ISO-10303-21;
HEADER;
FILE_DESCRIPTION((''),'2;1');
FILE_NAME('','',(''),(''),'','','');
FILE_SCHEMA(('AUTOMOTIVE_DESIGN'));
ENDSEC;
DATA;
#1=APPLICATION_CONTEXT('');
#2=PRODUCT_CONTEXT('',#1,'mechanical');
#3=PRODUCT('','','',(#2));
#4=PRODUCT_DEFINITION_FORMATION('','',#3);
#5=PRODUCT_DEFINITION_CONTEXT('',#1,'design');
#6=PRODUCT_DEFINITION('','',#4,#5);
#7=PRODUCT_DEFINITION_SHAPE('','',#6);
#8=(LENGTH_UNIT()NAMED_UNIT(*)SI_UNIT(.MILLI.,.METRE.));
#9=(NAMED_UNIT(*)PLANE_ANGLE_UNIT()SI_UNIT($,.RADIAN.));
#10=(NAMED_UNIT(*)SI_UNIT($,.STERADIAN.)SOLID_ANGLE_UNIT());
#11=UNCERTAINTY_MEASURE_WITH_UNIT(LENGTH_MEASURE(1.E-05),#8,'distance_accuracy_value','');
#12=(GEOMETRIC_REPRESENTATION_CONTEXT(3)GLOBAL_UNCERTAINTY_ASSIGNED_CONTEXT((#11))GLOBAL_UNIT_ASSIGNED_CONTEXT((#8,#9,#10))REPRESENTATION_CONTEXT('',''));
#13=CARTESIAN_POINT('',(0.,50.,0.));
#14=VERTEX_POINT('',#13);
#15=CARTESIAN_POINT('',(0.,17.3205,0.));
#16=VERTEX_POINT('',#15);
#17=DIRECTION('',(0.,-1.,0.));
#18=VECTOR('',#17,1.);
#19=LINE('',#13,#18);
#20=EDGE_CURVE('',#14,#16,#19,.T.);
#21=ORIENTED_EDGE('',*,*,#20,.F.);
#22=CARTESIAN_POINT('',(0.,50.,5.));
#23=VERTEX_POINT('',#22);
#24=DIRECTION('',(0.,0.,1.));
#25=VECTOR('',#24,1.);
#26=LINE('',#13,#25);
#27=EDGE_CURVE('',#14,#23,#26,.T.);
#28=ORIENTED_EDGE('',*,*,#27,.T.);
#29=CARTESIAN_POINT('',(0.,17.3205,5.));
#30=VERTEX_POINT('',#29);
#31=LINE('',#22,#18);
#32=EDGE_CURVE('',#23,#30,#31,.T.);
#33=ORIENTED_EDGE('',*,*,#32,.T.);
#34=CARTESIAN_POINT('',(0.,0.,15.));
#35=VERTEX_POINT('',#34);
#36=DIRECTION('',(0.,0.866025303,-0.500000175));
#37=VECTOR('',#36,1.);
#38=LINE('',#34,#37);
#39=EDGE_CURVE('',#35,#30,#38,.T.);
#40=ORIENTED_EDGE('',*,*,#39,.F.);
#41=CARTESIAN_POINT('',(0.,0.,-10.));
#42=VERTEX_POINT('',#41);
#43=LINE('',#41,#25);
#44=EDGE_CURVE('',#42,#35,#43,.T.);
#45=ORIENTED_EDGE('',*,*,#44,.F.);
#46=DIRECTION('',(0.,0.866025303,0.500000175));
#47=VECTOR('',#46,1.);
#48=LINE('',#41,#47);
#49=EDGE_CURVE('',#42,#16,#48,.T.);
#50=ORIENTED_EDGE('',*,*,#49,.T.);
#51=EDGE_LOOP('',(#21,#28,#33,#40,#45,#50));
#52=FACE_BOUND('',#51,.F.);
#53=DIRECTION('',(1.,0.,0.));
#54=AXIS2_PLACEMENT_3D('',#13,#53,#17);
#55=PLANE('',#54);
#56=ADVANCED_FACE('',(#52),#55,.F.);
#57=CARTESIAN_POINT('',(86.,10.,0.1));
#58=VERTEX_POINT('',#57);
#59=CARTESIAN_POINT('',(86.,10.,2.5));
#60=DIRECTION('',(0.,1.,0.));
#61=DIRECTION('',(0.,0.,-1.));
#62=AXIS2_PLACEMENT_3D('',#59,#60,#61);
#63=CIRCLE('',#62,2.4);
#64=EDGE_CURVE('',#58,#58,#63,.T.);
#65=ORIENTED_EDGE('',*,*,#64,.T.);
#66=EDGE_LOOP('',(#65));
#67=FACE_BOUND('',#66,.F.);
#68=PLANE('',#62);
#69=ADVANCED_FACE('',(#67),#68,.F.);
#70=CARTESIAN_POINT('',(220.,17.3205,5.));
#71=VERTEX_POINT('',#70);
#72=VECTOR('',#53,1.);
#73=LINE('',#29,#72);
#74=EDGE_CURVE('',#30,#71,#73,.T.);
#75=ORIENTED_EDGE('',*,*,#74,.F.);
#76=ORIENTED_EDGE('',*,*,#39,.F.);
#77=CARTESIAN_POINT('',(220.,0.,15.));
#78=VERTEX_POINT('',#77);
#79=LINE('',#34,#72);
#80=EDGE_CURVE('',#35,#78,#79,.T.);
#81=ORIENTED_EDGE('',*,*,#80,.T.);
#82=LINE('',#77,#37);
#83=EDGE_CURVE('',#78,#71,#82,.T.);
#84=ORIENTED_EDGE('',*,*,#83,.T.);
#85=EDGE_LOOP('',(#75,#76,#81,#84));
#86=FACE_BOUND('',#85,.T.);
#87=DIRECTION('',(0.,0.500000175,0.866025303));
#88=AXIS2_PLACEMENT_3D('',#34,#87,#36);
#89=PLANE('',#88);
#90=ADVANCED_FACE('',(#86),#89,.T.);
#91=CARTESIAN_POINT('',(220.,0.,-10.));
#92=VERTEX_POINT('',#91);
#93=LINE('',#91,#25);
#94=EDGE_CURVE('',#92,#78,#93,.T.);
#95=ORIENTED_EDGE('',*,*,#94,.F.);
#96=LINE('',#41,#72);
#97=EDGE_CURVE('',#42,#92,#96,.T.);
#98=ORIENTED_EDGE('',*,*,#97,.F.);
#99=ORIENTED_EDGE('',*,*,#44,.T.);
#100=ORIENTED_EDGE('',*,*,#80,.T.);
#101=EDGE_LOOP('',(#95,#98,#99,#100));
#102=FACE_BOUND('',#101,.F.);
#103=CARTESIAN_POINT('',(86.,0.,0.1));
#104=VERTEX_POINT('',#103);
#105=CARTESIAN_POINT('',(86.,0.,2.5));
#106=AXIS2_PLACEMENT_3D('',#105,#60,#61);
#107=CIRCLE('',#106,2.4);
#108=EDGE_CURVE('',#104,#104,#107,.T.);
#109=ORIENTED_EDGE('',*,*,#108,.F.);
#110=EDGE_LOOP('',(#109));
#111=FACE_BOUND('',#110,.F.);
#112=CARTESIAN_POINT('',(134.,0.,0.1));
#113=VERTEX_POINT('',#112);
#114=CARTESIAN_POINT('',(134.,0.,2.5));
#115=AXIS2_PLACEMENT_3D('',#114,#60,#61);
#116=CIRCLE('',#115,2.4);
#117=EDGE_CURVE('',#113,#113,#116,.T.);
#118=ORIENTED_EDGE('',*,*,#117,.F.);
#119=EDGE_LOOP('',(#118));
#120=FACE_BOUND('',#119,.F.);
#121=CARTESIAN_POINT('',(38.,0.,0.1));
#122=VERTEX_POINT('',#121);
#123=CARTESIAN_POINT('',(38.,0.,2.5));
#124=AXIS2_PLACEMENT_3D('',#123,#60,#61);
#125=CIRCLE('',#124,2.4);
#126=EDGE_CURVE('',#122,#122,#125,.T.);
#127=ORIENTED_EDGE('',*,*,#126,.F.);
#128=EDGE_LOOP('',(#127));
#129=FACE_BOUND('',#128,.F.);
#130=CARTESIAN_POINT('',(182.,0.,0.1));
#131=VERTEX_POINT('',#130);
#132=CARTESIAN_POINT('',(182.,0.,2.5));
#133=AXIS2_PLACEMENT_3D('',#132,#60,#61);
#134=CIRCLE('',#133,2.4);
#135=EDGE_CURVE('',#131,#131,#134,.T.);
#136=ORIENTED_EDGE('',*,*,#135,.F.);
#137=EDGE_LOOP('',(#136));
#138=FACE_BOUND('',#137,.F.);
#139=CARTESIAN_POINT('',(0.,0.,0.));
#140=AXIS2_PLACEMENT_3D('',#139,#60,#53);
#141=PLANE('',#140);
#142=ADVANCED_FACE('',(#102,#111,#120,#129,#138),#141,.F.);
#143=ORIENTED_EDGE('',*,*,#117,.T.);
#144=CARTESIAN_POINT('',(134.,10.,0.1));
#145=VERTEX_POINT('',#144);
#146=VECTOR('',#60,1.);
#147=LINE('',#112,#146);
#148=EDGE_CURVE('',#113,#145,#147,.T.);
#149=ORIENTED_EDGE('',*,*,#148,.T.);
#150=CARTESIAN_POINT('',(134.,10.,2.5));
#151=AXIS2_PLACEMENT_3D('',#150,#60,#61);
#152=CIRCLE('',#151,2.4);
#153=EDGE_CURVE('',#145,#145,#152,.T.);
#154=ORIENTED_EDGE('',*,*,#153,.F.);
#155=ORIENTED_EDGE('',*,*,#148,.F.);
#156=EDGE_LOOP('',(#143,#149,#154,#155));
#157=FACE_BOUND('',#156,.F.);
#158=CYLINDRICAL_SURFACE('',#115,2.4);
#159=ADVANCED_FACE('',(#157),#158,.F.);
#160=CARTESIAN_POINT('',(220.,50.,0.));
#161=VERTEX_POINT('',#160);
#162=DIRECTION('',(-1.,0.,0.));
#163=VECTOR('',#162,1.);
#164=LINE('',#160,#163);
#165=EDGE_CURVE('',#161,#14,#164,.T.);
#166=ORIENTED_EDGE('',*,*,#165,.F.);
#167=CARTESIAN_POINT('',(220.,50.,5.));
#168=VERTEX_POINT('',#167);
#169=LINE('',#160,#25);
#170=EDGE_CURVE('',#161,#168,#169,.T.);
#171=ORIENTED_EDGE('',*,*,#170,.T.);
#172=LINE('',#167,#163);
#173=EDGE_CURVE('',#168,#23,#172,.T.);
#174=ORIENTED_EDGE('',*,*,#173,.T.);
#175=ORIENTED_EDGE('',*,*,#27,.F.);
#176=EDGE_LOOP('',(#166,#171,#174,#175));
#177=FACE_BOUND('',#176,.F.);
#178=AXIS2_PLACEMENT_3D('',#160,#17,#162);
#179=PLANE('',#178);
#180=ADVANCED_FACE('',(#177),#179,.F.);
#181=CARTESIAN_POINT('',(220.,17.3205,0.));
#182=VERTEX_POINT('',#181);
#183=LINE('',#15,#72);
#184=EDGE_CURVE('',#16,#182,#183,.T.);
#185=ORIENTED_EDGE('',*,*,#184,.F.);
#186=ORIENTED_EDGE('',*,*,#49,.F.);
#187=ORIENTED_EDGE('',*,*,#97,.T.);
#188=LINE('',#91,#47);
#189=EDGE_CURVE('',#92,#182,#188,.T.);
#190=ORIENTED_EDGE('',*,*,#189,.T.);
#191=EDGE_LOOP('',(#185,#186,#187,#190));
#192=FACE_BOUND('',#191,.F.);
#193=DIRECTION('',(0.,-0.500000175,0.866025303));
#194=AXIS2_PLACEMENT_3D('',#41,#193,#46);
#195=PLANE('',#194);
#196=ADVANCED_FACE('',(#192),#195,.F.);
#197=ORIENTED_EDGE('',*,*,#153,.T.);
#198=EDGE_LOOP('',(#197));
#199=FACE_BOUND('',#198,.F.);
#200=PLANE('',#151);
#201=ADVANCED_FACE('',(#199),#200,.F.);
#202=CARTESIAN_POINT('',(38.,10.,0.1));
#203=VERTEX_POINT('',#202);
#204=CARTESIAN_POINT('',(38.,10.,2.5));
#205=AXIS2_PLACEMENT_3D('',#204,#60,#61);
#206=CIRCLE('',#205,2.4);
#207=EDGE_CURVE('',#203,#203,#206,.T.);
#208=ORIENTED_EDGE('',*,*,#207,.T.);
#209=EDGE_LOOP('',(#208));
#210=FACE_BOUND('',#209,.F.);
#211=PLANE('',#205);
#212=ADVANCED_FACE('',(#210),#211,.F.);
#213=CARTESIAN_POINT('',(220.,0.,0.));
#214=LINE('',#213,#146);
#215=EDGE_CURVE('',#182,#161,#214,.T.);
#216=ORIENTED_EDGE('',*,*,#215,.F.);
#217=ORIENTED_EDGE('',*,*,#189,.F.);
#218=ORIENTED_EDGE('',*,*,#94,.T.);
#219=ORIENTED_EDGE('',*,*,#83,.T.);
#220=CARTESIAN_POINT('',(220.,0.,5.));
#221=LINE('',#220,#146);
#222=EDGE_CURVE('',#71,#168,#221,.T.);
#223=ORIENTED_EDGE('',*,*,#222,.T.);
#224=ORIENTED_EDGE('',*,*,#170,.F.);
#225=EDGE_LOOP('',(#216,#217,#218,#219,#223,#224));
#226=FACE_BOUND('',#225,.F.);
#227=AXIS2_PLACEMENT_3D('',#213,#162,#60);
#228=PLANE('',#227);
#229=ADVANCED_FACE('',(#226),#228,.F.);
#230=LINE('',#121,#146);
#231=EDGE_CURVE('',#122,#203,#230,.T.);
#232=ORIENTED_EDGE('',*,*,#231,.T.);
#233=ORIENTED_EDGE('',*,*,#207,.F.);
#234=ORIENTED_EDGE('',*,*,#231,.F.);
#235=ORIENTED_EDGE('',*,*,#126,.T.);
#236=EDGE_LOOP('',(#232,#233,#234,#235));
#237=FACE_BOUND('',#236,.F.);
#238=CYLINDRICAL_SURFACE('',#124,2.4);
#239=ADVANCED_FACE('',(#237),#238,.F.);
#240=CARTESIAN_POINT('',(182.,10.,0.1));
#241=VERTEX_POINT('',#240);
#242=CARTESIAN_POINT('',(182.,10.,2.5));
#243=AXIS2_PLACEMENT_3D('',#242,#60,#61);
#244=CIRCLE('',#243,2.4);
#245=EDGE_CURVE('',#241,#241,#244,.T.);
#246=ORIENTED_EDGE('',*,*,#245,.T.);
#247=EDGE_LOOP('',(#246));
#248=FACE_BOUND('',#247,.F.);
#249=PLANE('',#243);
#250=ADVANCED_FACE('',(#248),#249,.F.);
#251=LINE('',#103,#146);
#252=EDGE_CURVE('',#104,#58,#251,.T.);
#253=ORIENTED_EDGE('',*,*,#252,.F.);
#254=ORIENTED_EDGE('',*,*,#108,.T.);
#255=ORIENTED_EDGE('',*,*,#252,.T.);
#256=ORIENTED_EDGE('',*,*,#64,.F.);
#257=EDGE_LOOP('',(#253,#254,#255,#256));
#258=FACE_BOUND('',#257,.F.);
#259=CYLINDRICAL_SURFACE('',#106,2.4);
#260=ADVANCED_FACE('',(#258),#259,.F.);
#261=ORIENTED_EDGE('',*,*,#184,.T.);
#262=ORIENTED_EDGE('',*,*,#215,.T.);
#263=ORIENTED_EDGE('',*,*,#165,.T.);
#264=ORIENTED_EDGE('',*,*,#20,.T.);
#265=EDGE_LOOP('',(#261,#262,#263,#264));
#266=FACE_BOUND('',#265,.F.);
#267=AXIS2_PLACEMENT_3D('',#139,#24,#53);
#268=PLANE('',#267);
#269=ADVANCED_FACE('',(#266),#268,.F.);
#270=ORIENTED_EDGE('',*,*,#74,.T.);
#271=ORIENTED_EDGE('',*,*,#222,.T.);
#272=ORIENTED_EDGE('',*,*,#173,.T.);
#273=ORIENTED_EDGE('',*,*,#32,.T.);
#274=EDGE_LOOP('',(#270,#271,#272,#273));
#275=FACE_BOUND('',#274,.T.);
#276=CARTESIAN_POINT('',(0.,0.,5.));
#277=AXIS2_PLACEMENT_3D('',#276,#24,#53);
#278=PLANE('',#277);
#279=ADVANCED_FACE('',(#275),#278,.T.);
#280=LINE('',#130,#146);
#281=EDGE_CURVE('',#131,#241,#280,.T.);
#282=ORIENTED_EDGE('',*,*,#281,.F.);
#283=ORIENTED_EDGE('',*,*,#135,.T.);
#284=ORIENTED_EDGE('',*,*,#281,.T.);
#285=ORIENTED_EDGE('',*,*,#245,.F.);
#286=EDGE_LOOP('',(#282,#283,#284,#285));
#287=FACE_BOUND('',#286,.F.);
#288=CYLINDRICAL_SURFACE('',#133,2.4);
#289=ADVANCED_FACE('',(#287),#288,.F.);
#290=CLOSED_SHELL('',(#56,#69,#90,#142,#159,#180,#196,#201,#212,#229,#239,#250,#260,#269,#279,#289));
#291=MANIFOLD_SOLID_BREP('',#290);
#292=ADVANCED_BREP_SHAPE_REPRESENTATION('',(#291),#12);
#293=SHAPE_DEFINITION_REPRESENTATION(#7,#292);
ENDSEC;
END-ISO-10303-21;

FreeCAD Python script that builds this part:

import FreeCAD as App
import Part
import Sketcher
from FreeCAD import Vector
Q = App.Units.Quantity

doc = App.newDocument("Part")
params = doc.addObject("Spreadsheet::Sheet", "Params")
for row, (alias, value) in enumerate([
    ("sketch1_width", "220 mm"),
    ("sketch1_height", "50 mm"),
    ("pad1_length", "5 mm"),
    ("sketch2_diameter", "4.8 mm"),
    ("hole_diameter", "4.8 mm"),
    ("hole_depth", "10 mm"),
    ("sketch3_height", "10 mm"),
    ("pad2_length", "220 mm"),
], start=1):
    params.set(f"A{row}", alias)
    params.set(f"B{row}", "=" + value)
    params.setAlias(f"B{row}", alias)

body = doc.addObject("PartDesign::Body", "Body")

sketch1 = doc.addObject("Sketcher::SketchObject", "Sketch")
body.addObject(sketch1)
sketch1.AttachmentSupport = (doc.XY_Plane, [""])
sketch1.MapMode = "FlatFace"
sketch1.addGeometry([
    Part.LineSegment(Vector(0, 50, 0), Vector(0, 0, 0)),
    Part.LineSegment(Vector(0, 0, 0), Vector(220, 0, 0)),
    Part.LineSegment(Vector(220, 0, 0), Vector(220, 50, 0)),
    Part.LineSegment(Vector(220, 50, 0), Vector(0, 50, 0)),
], False)
sketch1.addConstraint([
    Sketcher.Constraint("Coincident", 0, 2, 1, 1),
    Sketcher.Constraint("Coincident", 1, 2, 2, 1),
    Sketcher.Constraint("Coincident", 2, 2, 3, 1),
    Sketcher.Constraint("Coincident", 3, 2, 0, 1),
    Sketcher.Constraint("Vertical", 0),
    Sketcher.Constraint("Horizontal", 1),
    Sketcher.Constraint("Vertical", 2),
    Sketcher.Constraint("Horizontal", 3),
    Sketcher.Constraint("Coincident", 0, 2, -1, 1),
    Sketcher.Constraint("DistanceX", 1, 1, 1, 2, 220.0),
    Sketcher.Constraint("DistanceY", 0, 2, 0, 1, 50.0),
])
sketch1.setExpression("Constraints[9]", "Params.sketch1_width")
sketch1.setExpression("Constraints[10]", "Params.sketch1_height")
pad1 = doc.addObject("PartDesign::Pad", "Pad")
body.addObject(pad1)
pad1.Profile = sketch1
pad1.setExpression("Length", "Params.pad1_length")

sketch2 = doc.addObject("Sketcher::SketchObject", "Sketch001")
body.addObject(sketch2)
sketch2.AttachmentSupport = (doc.XZ_Plane, [""])
sketch2.MapMode = "FlatFace"
sketch2.addGeometry([
    Part.Circle(Vector(38, 2.5, 0), Vector(0, 0, 1), 2.4),
    Part.Circle(Vector(86, 2.5, 0), Vector(0, 0, 1), 2.4),
    Part.Circle(Vector(134, 2.5, 0), Vector(0, 0, 1), 2.4),
    Part.Circle(Vector(182, 2.5, 0), Vector(0, 0, 1), 2.4),
], False)
sketch2.addConstraint([
    Sketcher.Constraint("Equal", 0, 1),
    Sketcher.Constraint("Equal", 1, 2),
    Sketcher.Constraint("Equal", 2, 3),
    Sketcher.Constraint("Horizontal", 0, 3, 1, 3),
    Sketcher.Constraint("Horizontal", 1, 3, 2, 3),
    Sketcher.Constraint("Horizontal", 2, 3, 3, 3),
    Sketcher.Constraint("Diameter", 0, 4.8),
    Sketcher.Constraint("DistanceX", -1, 1, 0, 3, 38.0),
    Sketcher.Constraint("DistanceX", -1, 1, 1, 3, 86.0),
    Sketcher.Constraint("DistanceX", -1, 1, 2, 3, 134.0),
    Sketcher.Constraint("DistanceX", -1, 1, 3, 3, 182.0),
    Sketcher.Constraint("DistanceY", -1, 1, 0, 3, 2.5),
])
sketch2.setExpression("Constraints[6]", "Params.sketch2_diameter")
doc.recompute()
hole = doc.addObject("PartDesign::Hole", "Hole")
body.addObject(hole)
hole.Profile = sketch2
hole.ThreadType = "None"
hole.setExpression("Diameter", "Params.hole_diameter")
hole.DepthType = "Dimension"
hole.setExpression("Depth", "Params.hole_depth")
hole.DrillPoint = "Flat"

sketch3 = doc.addObject("Sketcher::SketchObject", "Sketch002")
body.addObject(sketch3)
sketch3.AttachmentSupport = (doc.YZ_Plane, [""])
sketch3.MapMode = "FlatFace"
sketch3.addGeometry([
    Part.LineSegment(Vector(0, -10, 0), Vector(0, 0, 0)),
    Part.LineSegment(Vector(0, 0, 0), Vector(17, 0, 0)),
    Part.LineSegment(Vector(17, 0, 0), Vector(0, -10, 0)),
    Part.LineSegment(Vector(0, 15, 0), Vector(17, 5, 0)),
    Part.LineSegment(Vector(17, 5, 0), Vector(0, 5, 0)),
    Part.LineSegment(Vector(0, 5, 0), Vector(0, 15, 0)),
], False)
sketch3.addConstraint([
    Sketcher.Constraint("Coincident", 0, 2, 1, 1),
    Sketcher.Constraint("Coincident", 1, 2, 2, 1),
    Sketcher.Constraint("Coincident", 2, 2, 0, 1),
    Sketcher.Constraint("Coincident", 3, 2, 4, 1),
    Sketcher.Constraint("Coincident", 4, 2, 5, 1),
    Sketcher.Constraint("Coincident", 5, 2, 3, 1),
    Sketcher.Constraint("Vertical", 0),
    Sketcher.Constraint("Horizontal", 1),
    Sketcher.Constraint("Horizontal", 4),
    Sketcher.Constraint("Vertical", 5),
    Sketcher.Constraint("Coincident", 0, 2, -1, 1),
    Sketcher.Constraint("PointOnObject", 4, 2, -2),
    Sketcher.Constraint("Vertical", 1, 2, 3, 2),
    Sketcher.Constraint("Equal", 0, 5),
    Sketcher.Constraint("DistanceY", 0, 1, 0, 2, 10.0),
    Sketcher.Constraint("Angle", 2, Q("-150 deg")),
    Sketcher.Constraint("DistanceY", -1, 1, 3, 2, 5.0),
])
sketch3.setExpression("Constraints[14]", "Params.sketch3_height")
pad2 = doc.addObject("PartDesign::Pad", "Pad001")
body.addObject(pad2)
pad2.Profile = sketch3
pad2.setExpression("Length", "Params.pad2_length")

doc.recompute()
